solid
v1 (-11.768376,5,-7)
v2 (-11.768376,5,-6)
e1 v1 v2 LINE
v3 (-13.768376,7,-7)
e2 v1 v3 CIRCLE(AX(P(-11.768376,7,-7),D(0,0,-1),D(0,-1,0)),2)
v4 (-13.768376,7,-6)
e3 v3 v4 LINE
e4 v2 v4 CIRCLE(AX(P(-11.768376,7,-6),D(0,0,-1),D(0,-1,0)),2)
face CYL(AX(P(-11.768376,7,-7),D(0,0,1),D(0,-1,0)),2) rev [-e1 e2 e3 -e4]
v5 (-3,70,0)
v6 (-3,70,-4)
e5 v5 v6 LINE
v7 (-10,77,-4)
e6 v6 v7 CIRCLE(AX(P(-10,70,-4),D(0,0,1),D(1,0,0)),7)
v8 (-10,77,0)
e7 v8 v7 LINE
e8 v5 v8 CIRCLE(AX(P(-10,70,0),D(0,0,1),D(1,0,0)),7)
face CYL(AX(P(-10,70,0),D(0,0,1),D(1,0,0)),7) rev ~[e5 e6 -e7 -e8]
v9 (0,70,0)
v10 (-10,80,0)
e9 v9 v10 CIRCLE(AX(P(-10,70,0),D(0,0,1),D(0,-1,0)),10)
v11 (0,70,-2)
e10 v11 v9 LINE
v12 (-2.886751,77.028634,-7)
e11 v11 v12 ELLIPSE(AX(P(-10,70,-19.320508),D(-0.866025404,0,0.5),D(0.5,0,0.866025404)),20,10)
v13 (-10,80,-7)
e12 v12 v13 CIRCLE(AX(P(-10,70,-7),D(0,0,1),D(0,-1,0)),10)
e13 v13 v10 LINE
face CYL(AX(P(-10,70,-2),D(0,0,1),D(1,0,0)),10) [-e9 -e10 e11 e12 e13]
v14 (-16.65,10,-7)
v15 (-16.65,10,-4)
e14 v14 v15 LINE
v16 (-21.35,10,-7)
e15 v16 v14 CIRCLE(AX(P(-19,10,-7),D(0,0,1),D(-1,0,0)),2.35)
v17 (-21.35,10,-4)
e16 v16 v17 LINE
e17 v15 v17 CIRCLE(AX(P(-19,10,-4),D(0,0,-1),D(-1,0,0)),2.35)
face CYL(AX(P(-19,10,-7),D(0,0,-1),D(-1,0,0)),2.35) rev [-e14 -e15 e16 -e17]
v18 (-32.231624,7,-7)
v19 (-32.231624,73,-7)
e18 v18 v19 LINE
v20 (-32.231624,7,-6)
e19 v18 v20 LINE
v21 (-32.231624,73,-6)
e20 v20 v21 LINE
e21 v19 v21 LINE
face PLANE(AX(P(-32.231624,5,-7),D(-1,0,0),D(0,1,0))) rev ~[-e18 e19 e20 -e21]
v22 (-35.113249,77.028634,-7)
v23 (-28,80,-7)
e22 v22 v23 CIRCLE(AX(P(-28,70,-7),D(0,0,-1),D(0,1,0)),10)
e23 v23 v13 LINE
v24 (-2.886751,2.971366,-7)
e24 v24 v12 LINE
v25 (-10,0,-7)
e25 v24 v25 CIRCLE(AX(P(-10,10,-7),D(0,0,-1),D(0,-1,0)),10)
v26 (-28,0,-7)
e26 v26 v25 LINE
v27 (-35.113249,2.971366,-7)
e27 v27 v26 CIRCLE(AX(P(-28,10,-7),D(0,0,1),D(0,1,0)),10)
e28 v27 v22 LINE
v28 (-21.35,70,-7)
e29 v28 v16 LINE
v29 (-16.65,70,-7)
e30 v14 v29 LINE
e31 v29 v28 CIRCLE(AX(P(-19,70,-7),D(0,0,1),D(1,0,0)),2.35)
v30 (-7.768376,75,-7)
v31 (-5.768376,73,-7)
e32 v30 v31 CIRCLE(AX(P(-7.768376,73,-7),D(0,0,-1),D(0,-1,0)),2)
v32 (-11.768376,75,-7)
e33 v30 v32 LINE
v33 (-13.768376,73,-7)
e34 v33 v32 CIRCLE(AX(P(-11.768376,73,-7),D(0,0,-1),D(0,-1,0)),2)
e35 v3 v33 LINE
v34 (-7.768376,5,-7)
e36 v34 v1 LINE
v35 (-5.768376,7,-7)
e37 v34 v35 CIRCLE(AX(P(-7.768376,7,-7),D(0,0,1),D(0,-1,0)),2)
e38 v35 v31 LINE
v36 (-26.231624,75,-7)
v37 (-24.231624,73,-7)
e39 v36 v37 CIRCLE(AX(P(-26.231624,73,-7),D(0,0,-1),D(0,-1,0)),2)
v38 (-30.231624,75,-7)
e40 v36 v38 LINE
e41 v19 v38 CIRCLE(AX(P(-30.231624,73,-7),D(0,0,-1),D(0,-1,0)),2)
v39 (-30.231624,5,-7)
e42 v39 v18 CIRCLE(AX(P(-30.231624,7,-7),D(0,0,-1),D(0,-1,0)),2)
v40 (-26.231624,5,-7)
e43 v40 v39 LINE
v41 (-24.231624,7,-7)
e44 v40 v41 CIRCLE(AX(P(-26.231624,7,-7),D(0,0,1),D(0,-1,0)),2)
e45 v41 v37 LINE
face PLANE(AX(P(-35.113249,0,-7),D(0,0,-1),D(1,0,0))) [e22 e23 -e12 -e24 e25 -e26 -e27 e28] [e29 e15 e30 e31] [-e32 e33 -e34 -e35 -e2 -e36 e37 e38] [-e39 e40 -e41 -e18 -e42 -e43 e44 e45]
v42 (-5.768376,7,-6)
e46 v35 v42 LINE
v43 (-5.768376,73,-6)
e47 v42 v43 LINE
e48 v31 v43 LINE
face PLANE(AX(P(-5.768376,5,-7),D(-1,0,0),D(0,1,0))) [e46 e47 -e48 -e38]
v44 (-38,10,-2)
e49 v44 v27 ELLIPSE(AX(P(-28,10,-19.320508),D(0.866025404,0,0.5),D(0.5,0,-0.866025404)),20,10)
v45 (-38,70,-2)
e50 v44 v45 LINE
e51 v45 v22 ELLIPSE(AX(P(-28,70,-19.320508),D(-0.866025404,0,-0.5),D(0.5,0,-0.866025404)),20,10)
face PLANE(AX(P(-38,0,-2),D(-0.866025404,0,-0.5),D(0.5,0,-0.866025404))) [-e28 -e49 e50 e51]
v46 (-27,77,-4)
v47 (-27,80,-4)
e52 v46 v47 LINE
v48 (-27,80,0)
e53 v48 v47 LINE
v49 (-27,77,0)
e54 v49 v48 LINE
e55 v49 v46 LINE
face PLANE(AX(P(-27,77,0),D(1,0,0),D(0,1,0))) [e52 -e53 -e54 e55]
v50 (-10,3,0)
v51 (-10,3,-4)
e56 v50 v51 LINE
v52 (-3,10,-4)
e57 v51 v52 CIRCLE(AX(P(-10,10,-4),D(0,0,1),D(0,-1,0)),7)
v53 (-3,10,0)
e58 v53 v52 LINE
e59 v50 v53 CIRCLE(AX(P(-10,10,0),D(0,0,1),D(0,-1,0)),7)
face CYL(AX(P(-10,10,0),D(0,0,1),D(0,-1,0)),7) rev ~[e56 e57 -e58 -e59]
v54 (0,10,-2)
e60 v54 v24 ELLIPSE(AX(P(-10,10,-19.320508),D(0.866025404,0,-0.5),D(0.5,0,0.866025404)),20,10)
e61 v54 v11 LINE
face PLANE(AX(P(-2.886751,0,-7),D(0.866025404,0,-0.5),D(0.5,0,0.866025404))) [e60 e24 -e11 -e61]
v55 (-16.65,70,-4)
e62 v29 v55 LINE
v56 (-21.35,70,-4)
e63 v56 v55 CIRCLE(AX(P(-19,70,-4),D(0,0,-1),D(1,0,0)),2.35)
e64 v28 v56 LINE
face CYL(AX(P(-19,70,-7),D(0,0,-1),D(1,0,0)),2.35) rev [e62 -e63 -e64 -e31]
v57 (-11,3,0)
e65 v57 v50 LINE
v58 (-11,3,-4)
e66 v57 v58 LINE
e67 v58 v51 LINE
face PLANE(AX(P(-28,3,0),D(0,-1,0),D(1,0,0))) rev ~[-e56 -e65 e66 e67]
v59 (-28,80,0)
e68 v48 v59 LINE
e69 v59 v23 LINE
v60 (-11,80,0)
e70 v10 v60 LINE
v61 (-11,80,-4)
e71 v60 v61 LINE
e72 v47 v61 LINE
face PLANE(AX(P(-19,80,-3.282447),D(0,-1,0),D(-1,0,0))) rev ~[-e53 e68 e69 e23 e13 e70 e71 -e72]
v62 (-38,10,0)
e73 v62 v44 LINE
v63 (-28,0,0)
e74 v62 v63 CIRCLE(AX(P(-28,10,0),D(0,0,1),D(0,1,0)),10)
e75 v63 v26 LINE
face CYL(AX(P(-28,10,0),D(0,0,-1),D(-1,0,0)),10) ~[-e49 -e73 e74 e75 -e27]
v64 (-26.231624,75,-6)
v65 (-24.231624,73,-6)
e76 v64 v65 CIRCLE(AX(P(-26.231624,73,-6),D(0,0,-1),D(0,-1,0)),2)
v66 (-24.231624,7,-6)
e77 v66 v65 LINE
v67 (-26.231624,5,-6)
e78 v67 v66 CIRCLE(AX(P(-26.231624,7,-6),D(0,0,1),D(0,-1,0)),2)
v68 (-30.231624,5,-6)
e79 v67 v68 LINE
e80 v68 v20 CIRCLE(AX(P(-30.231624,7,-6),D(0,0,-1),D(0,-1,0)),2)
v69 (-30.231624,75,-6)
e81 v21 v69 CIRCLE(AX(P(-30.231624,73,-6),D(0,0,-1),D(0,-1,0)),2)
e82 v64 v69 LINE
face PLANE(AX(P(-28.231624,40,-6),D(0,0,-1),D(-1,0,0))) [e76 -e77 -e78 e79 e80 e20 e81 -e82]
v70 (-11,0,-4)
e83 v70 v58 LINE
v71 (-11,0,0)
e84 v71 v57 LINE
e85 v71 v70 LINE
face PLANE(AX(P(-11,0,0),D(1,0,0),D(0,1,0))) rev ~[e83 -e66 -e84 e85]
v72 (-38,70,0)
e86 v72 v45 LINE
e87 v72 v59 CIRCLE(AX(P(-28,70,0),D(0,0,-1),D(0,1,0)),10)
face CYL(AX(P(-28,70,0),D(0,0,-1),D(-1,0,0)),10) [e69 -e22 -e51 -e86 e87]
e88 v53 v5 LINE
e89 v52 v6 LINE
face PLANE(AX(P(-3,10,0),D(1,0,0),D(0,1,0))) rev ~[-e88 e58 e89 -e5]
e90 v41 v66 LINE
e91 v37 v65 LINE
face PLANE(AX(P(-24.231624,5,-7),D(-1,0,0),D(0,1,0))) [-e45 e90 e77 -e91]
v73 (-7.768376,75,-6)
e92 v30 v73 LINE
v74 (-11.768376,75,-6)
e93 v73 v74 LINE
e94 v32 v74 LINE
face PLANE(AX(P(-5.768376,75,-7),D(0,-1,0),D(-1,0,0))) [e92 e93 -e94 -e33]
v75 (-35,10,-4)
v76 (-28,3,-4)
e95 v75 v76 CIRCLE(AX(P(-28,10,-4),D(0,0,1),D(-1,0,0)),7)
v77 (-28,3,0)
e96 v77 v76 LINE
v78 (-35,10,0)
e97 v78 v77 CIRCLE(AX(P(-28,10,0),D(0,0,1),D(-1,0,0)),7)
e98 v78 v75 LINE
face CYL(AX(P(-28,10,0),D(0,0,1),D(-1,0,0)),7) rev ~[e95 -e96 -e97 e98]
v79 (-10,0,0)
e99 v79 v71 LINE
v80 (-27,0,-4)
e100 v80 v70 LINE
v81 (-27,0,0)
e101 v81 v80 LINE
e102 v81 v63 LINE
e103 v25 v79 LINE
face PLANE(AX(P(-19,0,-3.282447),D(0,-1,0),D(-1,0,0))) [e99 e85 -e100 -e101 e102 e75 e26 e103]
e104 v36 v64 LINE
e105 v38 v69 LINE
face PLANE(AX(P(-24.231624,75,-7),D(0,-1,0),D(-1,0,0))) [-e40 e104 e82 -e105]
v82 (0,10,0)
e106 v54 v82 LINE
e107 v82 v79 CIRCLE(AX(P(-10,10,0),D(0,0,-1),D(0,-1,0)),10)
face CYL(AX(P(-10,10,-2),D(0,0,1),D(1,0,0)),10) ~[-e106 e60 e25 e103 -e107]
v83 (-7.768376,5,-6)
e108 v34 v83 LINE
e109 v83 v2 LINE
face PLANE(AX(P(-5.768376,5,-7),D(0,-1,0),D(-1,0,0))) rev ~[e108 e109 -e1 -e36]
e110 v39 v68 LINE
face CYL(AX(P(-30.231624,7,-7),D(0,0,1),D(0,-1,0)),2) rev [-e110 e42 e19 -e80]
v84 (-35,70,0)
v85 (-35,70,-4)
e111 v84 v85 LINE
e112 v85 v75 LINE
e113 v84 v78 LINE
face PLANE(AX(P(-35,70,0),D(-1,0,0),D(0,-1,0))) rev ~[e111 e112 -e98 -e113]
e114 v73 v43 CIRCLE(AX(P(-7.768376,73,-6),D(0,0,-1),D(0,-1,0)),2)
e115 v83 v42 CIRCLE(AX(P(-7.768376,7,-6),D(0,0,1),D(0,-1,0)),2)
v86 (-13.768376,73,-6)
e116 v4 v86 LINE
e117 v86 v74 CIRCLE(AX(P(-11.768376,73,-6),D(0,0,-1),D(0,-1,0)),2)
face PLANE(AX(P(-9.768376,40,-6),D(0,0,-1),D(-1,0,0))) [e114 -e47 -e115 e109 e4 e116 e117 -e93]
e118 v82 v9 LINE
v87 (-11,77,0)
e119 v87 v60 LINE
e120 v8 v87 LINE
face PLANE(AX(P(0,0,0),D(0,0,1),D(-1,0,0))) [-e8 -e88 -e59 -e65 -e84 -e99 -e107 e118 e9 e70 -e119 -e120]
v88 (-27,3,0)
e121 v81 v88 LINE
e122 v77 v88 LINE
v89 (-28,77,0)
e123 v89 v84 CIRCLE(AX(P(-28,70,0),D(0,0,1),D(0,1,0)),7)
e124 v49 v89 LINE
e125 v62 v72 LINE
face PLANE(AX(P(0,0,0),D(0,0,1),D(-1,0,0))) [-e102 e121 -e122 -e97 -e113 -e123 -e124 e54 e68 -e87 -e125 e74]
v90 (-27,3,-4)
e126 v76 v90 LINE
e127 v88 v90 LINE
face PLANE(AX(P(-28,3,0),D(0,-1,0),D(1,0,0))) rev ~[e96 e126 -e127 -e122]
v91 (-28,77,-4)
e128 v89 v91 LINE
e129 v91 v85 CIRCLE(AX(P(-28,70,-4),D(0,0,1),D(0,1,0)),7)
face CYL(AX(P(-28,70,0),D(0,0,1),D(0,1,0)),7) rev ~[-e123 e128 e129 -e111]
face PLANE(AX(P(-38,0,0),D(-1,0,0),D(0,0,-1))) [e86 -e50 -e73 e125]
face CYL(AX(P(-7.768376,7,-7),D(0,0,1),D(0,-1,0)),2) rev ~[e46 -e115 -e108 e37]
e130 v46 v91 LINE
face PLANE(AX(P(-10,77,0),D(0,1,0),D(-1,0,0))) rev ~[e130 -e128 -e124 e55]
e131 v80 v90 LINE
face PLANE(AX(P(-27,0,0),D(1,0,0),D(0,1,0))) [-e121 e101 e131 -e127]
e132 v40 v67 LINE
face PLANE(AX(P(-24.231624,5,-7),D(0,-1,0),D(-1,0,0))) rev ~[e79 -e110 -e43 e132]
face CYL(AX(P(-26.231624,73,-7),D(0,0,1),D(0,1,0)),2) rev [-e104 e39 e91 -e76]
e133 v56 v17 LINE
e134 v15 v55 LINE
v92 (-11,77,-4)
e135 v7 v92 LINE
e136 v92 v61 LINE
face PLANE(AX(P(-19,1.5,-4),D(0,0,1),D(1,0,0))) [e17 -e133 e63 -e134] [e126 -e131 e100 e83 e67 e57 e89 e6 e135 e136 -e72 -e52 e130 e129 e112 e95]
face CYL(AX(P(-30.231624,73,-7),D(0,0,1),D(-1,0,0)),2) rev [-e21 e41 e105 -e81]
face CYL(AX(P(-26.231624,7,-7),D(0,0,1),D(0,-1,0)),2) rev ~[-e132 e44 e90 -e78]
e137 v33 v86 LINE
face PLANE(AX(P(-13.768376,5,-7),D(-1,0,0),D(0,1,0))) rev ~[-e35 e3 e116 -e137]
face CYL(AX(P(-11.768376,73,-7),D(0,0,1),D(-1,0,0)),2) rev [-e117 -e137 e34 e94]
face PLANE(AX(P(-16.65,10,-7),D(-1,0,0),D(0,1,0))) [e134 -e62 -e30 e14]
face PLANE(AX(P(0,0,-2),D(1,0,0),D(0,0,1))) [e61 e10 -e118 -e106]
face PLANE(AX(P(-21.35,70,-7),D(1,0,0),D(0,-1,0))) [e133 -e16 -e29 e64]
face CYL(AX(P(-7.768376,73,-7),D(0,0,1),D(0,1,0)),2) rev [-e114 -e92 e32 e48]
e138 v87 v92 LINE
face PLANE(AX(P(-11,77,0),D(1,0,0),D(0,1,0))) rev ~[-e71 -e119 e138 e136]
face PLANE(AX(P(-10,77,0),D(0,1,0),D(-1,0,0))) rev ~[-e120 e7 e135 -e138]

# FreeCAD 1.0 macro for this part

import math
import FreeCAD as App
import Part
import Sketcher
from FreeCAD import Vector
Q = App.Units.Quantity


def edges_at(feature, points):
    """Names of the edges that pass closest to the given points."""
    edges = feature.Shape.Edges
    near = lambda p: min(range(len(edges)), key=lambda i: edges[i].distToShape(Part.Vertex(*p))[0])
    return sorted({f"Edge{near(p) + 1}" for p in points})


def add_polygon(sketch, points):
    """Adds a closed chain of lines whose ends are joined by coincident constraints."""
    first, n = sketch.GeometryCount, len(points)
    for a, b in zip(points, points[1:] + points[:1]):
        sketch.addGeometry(Part.LineSegment(App.Vector(*a, 0), App.Vector(*b, 0)), False)
    for i in range(n):
        sketch.addConstraint(Sketcher.Constraint("Coincident", first + i, 2, first + (i + 1) % n, 1))

doc = App.newDocument("Part")
body = doc.addObject("PartDesign::Body", "Body")

# Sketch on XZ plane
sketch1 = body.newObject("Sketcher::SketchObject", "Sketch")
sketch1.AttachmentSupport = (doc.getObject("XZ_Plane"), [""])
sketch1.MapMode = "FlatFace"
add_polygon(sketch1, [(-38, 0), (0, 0), (0, -2), (-2.9, -7), (-35.1, -7), (-38, -2)])  # lines 0-5
sketch1.addConstraint([
    Sketcher.Constraint("Horizontal", 0),
    Sketcher.Constraint("Vertical", 1),
    Sketcher.Constraint("Horizontal", 3),
    Sketcher.Constraint("Vertical", 5),
    Sketcher.Constraint("Coincident", 0, 2, -1, 1),
    Sketcher.Constraint("Horizontal", 1, 2, 4, 2),
    Sketcher.Constraint("Equal", 2, 4),
    Sketcher.Constraint("DistanceX", 0, 1, 0, 2, Q("38 mm")),
    Sketcher.Constraint("DistanceY", 1, 2, 1, 1, Q("2 mm")),
    Sketcher.Constraint("Angle", 2, Q("-120 deg")),
    Sketcher.Constraint("DistanceY", 2, 2, -1, 1, Q("7 mm")),
])
pad1 = body.newObject("PartDesign::Pad", "Pad")
pad1.Profile = sketch1
pad1.Length = 80
pad1.Reversed = True
doc.recompute()

fillet = body.newObject("PartDesign::Fillet", "Fillet")
fillet.Base = (pad1, edges_at(pad1, [
    (0, 0, -1),
    (-38, 0, -1),
    (-38, 80, -1),
    (0, 80, -1),
]))
fillet.Radius = 10

# Sketch on XY plane
sketch2 = body.newObject("Sketcher::SketchObject", "Sketch001")
sketch2.AttachmentSupport = (doc.getObject("XY_Plane"), [""])
sketch2.MapMode = "FlatFace"
sketch2.addGeometry([
    Part.LineSegment(Vector(-28, 3, 0), Vector(-10, 3, 0)),  # 0
    Part.ArcOfCircle(Part.Circle(Vector(-10, 10, 0), Vector(0, 0, 1), 7), math.radians(-90), math.radians(0)),  # 1
    Part.LineSegment(Vector(-3, 10, 0), Vector(-3, 70, 0)),  # 2
    Part.ArcOfCircle(Part.Circle(Vector(-10, 70, 0), Vector(0, 0, 1), 7), math.radians(0), math.radians(90)),  # 3
    Part.LineSegment(Vector(-10, 77, 0), Vector(-28, 77, 0)),  # 4
    Part.ArcOfCircle(Part.Circle(Vector(-28, 70, 0), Vector(0, 0, 1), 7), math.radians(90), math.radians(180)),  # 5
    Part.LineSegment(Vector(-35, 70, 0), Vector(-35, 10, 0)),  # 6
    Part.ArcOfCircle(Part.Circle(Vector(-28, 10, 0), Vector(0, 0, 1), 7), math.radians(-180), math.radians(-90)),  # 7
], False)
sketch2.addConstraint([
    Sketcher.Constraint("Tangent", 0, 2, 1, 1),
    Sketcher.Constraint("Tangent", 1, 2, 2, 1),
    Sketcher.Constraint("Tangent", 2, 2, 3, 1),
    Sketcher.Constraint("Tangent", 3, 2, 4, 1),
    Sketcher.Constraint("Tangent", 4, 2, 5, 1),
    Sketcher.Constraint("Tangent", 5, 2, 6, 1),
    Sketcher.Constraint("Tangent", 6, 2, 7, 1),
    Sketcher.Constraint("Tangent", 7, 2, 0, 1),
    Sketcher.Constraint("Horizontal", 0),
    Sketcher.Constraint("Vertical", 2),
    Sketcher.Constraint("Horizontal", 4),
    Sketcher.Constraint("Vertical", 6),
    Sketcher.Constraint("Equal", 1, 3),
    Sketcher.Constraint("Equal", 3, 5),
    Sketcher.Constraint("Equal", 5, 7),
    Sketcher.Constraint("Radius", 1, Q("7 mm")),
    Sketcher.Constraint("DistanceX", 0, 1, 0, 2, Q("18 mm")),
    Sketcher.Constraint("DistanceY", 2, 1, 2, 2, Q("60 mm")),
    Sketcher.Constraint("DistanceX", 1, 3, -1, 1, Q("10 mm")),
    Sketcher.Constraint("DistanceY", -1, 1, 1, 3, Q("10 mm")),
])
pocket1 = body.newObject("PartDesign::Pocket", "Pocket")
pocket1.Profile = sketch2
pocket1.Length = 4

# Sketch on XY plane
sketch3 = body.newObject("Sketcher::SketchObject", "Sketch002")
sketch3.AttachmentSupport = (doc.getObject("XY_Plane"), [""])
sketch3.MapMode = "FlatFace"
add_polygon(sketch3, [(-27, 80), (-27, 77), (-11, 77), (-11, 80)])  # lines 0-3
add_polygon(sketch3, [(-27, 3), (-27, 0), (-11, 0), (-11, 3)])  # lines 4-7
sketch3.addConstraint([
    Sketcher.Constraint("Vertical", 0),
    Sketcher.Constraint("Horizontal", 1),
    Sketcher.Constraint("Vertical", 2),
    Sketcher.Constraint("Horizontal", 3),
    Sketcher.Constraint("Vertical", 4),
    Sketcher.Constraint("Horizontal", 5),
    Sketcher.Constraint("Vertical", 6),
    Sketcher.Constraint("Horizontal", 7),
    Sketcher.Constraint("PointOnObject", 4, 2, -1),
    Sketcher.Constraint("Vertical", 3, 2, 4, 2),
    Sketcher.Constraint("Vertical", 2, 2, 5, 2),
    Sketcher.Constraint("Equal", 2, 4),
    Sketcher.Constraint("DistanceX", 1, 1, 1, 2, Q("16 mm")),
    Sketcher.Constraint("DistanceY", 0, 2, 0, 1, Q("3 mm")),
    Sketcher.Constraint("DistanceX", 0, 2, -1, 1, Q("27 mm")),
    Sketcher.Constraint("DistanceY", -1, 1, 0, 2, Q("77 mm")),
])
pocket2 = body.newObject("PartDesign::Pocket", "Pocket001")
pocket2.Profile = sketch3
pocket2.Length = 4

# Sketch on XY plane
sketch4 = body.newObject("Sketcher::SketchObject", "Sketch003")
sketch4.AttachmentSupport = (doc.getObject("XY_Plane"), [""])
sketch4.MapMode = "FlatFace"
sketch4.AttachmentOffset = App.Placement(Vector(0, 0, -7), App.Rotation())
sketch4.addGeometry([
    Part.LineSegment(Vector(-21.4, 10, 0), Vector(-21.4, 70, 0)),
    Part.ArcOfCircle(Part.Circle(Vector(-19, 70, 0), Vector(0, 0, 1), 2.4), math.radians(0), math.radians(180)),
    Part.LineSegment(Vector(-16.6, 70, 0), Vector(-16.6, 10, 0)),
    Part.ArcOfCircle(Part.Circle(Vector(-19, 10, 0), Vector(0, 0, 1), 2.4), math.radians(180), math.radians(360)),
], False)
sketch4.addConstraint([
    Sketcher.Constraint("Tangent", 0, 2, 1, 2),
    Sketcher.Constraint("Tangent", 1, 1, 2, 1),
    Sketcher.Constraint("Tangent", 2, 2, 3, 2),
    Sketcher.Constraint("Tangent", 3, 1, 0, 1),
    Sketcher.Constraint("Vertical", 0),
    Sketcher.Constraint("Vertical", 2),
    Sketcher.Constraint("DistanceY", 0, 1, 0, 2, Q("60 mm")),
    Sketcher.Constraint("Radius", 1, Q("2.35 mm")),
    Sketcher.Constraint("DistanceX", 1, 3, -1, 1, Q("19 mm")),
    Sketcher.Constraint("DistanceY", -1, 1, 1, 3, Q("70 mm")),
])
pocket3 = body.newObject("PartDesign::Pocket", "Pocket002")
pocket3.Profile = sketch4
pocket3.Type = "UpToFirst"
pocket3.Reversed = True

# Sketch on XY plane
sketch5 = body.newObject("Sketcher::SketchObject", "Sketch004")
sketch5.AttachmentSupport = (doc.getObject("XY_Plane"), [""])
sketch5.MapMode = "FlatFace"
sketch5.AttachmentOffset = App.Placement(Vector(0, 0, -7), App.Rotation())
add_polygon(sketch5, [(-6, 75), (-6, 5), (-14, 5), (-14, 75)])  # lines 0-3
add_polygon(sketch5, [(-24, 75), (-24, 5), (-32, 5), (-32, 75)])  # lines 4-7
sketch5.addConstraint([
    Sketcher.Constraint("Vertical", 0),
    Sketcher.Constraint("Horizontal", 1),
    Sketcher.Constraint("Vertical", 2),
    Sketcher.Constraint("Horizontal", 3),
    Sketcher.Constraint("Vertical", 4),
    Sketcher.Constraint("Horizontal", 5),
    Sketcher.Constraint("Vertical", 6),
    Sketcher.Constraint("Horizontal", 7),
    Sketcher.Constraint("Horizontal", 1, 2, 4, 2),
    Sketcher.Constraint("Horizontal", 3, 2, 6, 2),
    Sketcher.Constraint("Equal", 3, 5),
    Sketcher.Constraint("DistanceX", 1, 2, 1, 1, Q("8 mm")),
    Sketcher.Constraint("DistanceY", 0, 2, 0, 1, Q("70 mm")),
    Sketcher.Constraint("DistanceY", -1, 1, 0, 2, Q("5 mm")),
    Sketcher.Constraint("DistanceX", 4, 2, 1, 2, Q("10.463249 mm")),
    Sketcher.Constraint("DistanceX", 0, 2, -1, 1, Q("5.768376 mm")),
])
pocket4 = body.newObject("PartDesign::Pocket", "Pocket003")
pocket4.Profile = sketch5
pocket4.Length = 1
pocket4.Reversed = True
doc.recompute()

fillet2 = body.newObject("PartDesign::Fillet", "Fillet001")
fillet2.Base = (pocket4, edges_at(pocket4, [
    (-13.768, 75, -6.5),
    (-13.768, 5, -6.5),
    (-5.768, 5, -6.5),
    (-5.768, 75, -6.5),
    (-32.232, 75, -6.5),
    (-32.232, 5, -6.5),
    (-24.232, 5, -6.5),
    (-24.232, 75, -6.5),
]))
fillet2.Radius = 2

doc.recompute()
